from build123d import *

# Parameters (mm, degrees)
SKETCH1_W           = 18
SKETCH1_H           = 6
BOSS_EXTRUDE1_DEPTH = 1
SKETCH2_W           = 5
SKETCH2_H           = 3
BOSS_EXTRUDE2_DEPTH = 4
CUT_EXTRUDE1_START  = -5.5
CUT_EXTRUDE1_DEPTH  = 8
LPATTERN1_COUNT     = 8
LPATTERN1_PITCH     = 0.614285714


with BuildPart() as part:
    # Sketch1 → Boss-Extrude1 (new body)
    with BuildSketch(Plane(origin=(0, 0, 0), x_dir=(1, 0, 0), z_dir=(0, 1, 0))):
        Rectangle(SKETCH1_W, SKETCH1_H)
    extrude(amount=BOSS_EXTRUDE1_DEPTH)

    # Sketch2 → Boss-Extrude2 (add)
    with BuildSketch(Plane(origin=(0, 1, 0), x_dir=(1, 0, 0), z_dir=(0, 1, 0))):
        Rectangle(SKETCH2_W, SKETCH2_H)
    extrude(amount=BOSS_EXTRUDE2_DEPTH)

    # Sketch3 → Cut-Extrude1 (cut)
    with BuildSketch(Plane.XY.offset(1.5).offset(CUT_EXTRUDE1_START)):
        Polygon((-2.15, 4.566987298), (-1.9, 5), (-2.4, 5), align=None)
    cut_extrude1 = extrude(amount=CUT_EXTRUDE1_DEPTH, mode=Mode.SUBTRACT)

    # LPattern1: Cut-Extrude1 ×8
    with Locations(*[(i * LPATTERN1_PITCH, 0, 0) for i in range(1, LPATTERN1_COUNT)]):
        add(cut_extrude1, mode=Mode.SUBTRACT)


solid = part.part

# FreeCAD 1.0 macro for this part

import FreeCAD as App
import Part
import Sketcher
from FreeCAD import Vector
Q = App.Units.Quantity


def add_polygon(sketch, points):
    """Adds a closed chain of lines whose ends are joined by coincident constraints."""
    first, n = sketch.GeometryCount, len(points)
    for a, b in zip(points, points[1:] + points[:1]):
        sketch.addGeometry(Part.LineSegment(App.Vector(*a, 0), App.Vector(*b, 0)), False)
    for i in range(n):
        sketch.addConstraint(Sketcher.Constraint("Coincident", first + i, 2, first + (i + 1) % n, 1))

doc = App.newDocument("Part")
body = doc.addObject("PartDesign::Body", "Body")

# Sketch on XZ plane
sketch1 = doc.addObject("Sketcher::SketchObject", "Sketch")
body.addObject(sketch1)
sketch1.AttachmentSupport = (doc.XZ_Plane, [""])
sketch1.MapMode = "FlatFace"
add_polygon(sketch1, [(-9, -3), (-9, 3), (9, 3), (9, -3)])  # lines 0-3
sketch1.addConstraint([
    Sketcher.Constraint("Vertical", 0),
    Sketcher.Constraint("Horizontal", 1),
    Sketcher.Constraint("Vertical", 2),
    Sketcher.Constraint("Horizontal", 3),
    Sketcher.Constraint("Symmetric", 0, 2, 2, 2, -1, 1),
    Sketcher.Constraint("DistanceX", 1, 1, 1, 2, 18.0),
    Sketcher.Constraint("DistanceY", 0, 1, 0, 2, 6.0),
])
pad1 = doc.addObject("PartDesign::Pad", "Pad")
body.addObject(pad1)
pad1.Profile = sketch1
pad1.Length = 1
pad1.Reversed = True

# Sketch on XZ plane
sketch2 = doc.addObject("Sketcher::SketchObject", "Sketch001")
body.addObject(sketch2)
sketch2.AttachmentSupport = (doc.XZ_Plane, [""])
sketch2.MapMode = "FlatFace"
sketch2.AttachmentOffset = App.Placement(Vector(0, 0, -1), App.Rotation())
add_polygon(sketch2, [(-2.5, -1.5), (-2.5, 1.5), (2.5, 1.5), (2.5, -1.5)])  # lines 0-3
sketch2.addConstraint([
    Sketcher.Constraint("Vertical", 0),
    Sketcher.Constraint("Horizontal", 1),
    Sketcher.Constraint("Vertical", 2),
    Sketcher.Constraint("Horizontal", 3),
    Sketcher.Constraint("Symmetric", 0, 2, 2, 2, -1, 1),
    Sketcher.Constraint("DistanceX", 1, 1, 1, 2, 5.0),
    Sketcher.Constraint("DistanceY", 0, 1, 0, 2, 3.0),
])
pad2 = doc.addObject("PartDesign::Pad", "Pad001")
body.addObject(pad2)
pad2.Profile = sketch2
pad2.Length = 4
pad2.Reversed = True

# Sketch on XY plane
sketch3 = doc.addObject("Sketcher::SketchObject", "Sketch002")
body.addObject(sketch3)
sketch3.AttachmentSupport = (doc.XY_Plane, [""])
sketch3.MapMode = "FlatFace"
sketch3.AttachmentOffset = App.Placement(Vector(0, 0, -4), App.Rotation())
add_polygon(sketch3, [(-2.1, 4.6), (-1.9, 5), (-2.4, 5)])  # lines 0-2
sketch3.addConstraint([
    Sketcher.Constraint("Horizontal", 1),
    Sketcher.Constraint("Equal", 0, 2),
    Sketcher.Constraint("Angle", 0, Q("60 deg")),
    Sketcher.Constraint("DistanceX", 1, 2, 1, 1, 0.5),
    Sketcher.Constraint("DistanceY", -1, 1, 0, 2, 5.0),
    Sketcher.Constraint("DistanceX", 0, 2, -1, 1, 1.9),
])
pocket1 = doc.addObject("PartDesign::Pocket", "Pocket")
body.addObject(pocket1)
pocket1.Profile = sketch3
pocket1.Length = 8
pocket1.Reversed = True
doc.recompute()

linearpattern = doc.addObject("PartDesign::LinearPattern", "LinearPattern")
body.addObject(linearpattern)
linearpattern.Originals = [pocket1]
linearpattern.Direction = (doc.X_Axis, [""])
linearpattern.Mode = "offset"
linearpattern.Offset = 0.614286
linearpattern.Occurrences = 8
body.Tip = linearpattern

doc.recompute()
